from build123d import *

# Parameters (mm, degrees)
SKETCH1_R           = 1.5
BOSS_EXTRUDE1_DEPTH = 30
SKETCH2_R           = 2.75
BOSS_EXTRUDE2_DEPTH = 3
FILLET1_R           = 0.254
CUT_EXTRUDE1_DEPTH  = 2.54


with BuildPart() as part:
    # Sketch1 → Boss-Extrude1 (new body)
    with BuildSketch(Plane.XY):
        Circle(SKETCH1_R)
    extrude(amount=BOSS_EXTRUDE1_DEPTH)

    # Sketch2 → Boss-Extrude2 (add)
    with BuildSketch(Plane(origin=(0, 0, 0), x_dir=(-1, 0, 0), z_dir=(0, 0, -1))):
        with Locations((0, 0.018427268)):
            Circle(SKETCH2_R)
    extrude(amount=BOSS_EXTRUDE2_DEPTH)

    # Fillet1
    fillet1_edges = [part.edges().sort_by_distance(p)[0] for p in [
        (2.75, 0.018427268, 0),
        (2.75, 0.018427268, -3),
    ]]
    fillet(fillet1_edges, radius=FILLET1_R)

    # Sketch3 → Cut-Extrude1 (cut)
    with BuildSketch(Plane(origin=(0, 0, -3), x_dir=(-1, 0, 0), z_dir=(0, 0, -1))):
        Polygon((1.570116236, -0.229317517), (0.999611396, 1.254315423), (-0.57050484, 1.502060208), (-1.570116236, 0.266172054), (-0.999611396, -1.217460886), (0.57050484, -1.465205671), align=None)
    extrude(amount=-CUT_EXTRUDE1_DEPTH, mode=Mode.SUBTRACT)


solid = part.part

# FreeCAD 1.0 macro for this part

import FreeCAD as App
import Part
import Sketcher


def edges_at(feature, points):
    """Names of the edges that pass closest to the given points."""
    edges = feature.Shape.Edges
    near = lambda p: min(range(len(edges)), key=lambda i: edges[i].distToShape(Part.Vertex(*p))[0])
    return sorted({f"Edge{near(p) + 1}" for p in points})


def add_polygon(sketch, points):
    """Adds a closed chain of lines whose ends are joined by coincident constraints."""
    first, n = sketch.GeometryCount, len(points)
    for a, b in zip(points, points[1:] + points[:1]):
        sketch.addGeometry(Part.LineSegment(App.Vector(*a, 0), App.Vector(*b, 0)), False)
    for i in range(n):
        sketch.addConstraint(Sketcher.Constraint("Coincident", first + i, 2, first + (i + 1) % n, 1))

doc = App.newDocument("Part")
body = doc.addObject("PartDesign::Body", "Body")

# Sketch on XY plane
sketch1 = doc.addObject("Sketcher::SketchObject", "Sketch")
body.addObject(sketch1)
sketch1.AttachmentSupport = (doc.XY_Plane, [""])
sketch1.MapMode = "FlatFace"
sketch1.addGeometry(Part.Circle(App.Vector(0, 0, 0), App.Vector(0, 0, 1), 1.5), False)
sketch1.addConstraint(Sketcher.Constraint("Coincident", 0, 3, -1, 1))
sketch1.addConstraint(Sketcher.Constraint("Diameter", 0, 3.0))
pad1 = doc.addObject("PartDesign::Pad", "Pad")
body.addObject(pad1)
pad1.Profile = sketch1
pad1.Length = 30

# Sketch on XY plane
sketch2 = doc.addObject("Sketcher::SketchObject", "Sketch001")
body.addObject(sketch2)
sketch2.AttachmentSupport = (doc.XY_Plane, [""])
sketch2.MapMode = "FlatFace"
sketch2.addGeometry(Part.Circle(App.Vector(0, 0, 0), App.Vector(0, 0, 1), 2.8), False)
sketch2.addConstraint(Sketcher.Constraint("PointOnObject", 0, 3, -2))
sketch2.addConstraint(Sketcher.Constraint("Diameter", 0, 5.5))
sketch2.addConstraint(Sketcher.Constraint("DistanceY", -1, 1, 0, 3, 0.018427))
pad2 = doc.addObject("PartDesign::Pad", "Pad001")
body.addObject(pad2)
pad2.Profile = sketch2
pad2.Length = 3
pad2.Reversed = True
doc.recompute()

fillet = doc.addObject("PartDesign::Fillet", "Fillet")
body.addObject(fillet)
fillet.Base = (pad2, edges_at(pad2, [(2.75, 0.018, 0), (2.75, 0.018, -3)]))
fillet.Radius = 0.254

# Sketch on XY plane
sketch3 = doc.addObject("Sketcher::SketchObject", "Sketch002")
body.addObject(sketch3)
sketch3.AttachmentSupport = (doc.XY_Plane, [""])
sketch3.MapMode = "FlatFace"
sketch3.AttachmentOffset = App.Placement(App.Vector(0, 0, -3), App.Rotation())
add_polygon(sketch3, [(-1.6, -0.2), (-1, 1.3), (0.6, 1.5), (1.6, 0.3), (1, -1.2), (-0.6, -1.5)])  # lines 0-5
sketch3.addConstraint(Sketcher.Constraint("Parallel", 0, 3))
sketch3.addConstraint(Sketcher.Constraint("Parallel", 1, 4))
sketch3.addConstraint(Sketcher.Constraint("Parallel", 2, 5))
sketch3.addConstraint(Sketcher.Constraint("Equal", 0, 1))
sketch3.addConstraint(Sketcher.Constraint("Equal", 1, 2))
sketch3.addConstraint(Sketcher.Constraint("Equal", 2, 3))
sketch3.addConstraint(Sketcher.Constraint("Distance", 0, 1.589542))
sketch3.addConstraint(Sketcher.Constraint("DistanceX", 0, 2, -1, 1, 0.999611))
sketch3.addConstraint(Sketcher.Constraint("DistanceY", -1, 1, 1, 2, 1.50206))
sketch3.addConstraint(Sketcher.Constraint("DistanceX", -1, 1, 3, 2, 0.999611))
sketch3.addConstraint(Sketcher.Constraint("DistanceY", 3, 2, -1, 1, 1.217461))
sketch3.addConstraint(Sketcher.Constraint("DistanceX", 1, 2, 2, 2, 0.999611))
pocket1 = doc.addObject("PartDesign::Pocket", "Pocket")
body.addObject(pocket1)
pocket1.Profile = sketch3
pocket1.Length = 2.54
pocket1.Reversed = True

doc.recompute()
